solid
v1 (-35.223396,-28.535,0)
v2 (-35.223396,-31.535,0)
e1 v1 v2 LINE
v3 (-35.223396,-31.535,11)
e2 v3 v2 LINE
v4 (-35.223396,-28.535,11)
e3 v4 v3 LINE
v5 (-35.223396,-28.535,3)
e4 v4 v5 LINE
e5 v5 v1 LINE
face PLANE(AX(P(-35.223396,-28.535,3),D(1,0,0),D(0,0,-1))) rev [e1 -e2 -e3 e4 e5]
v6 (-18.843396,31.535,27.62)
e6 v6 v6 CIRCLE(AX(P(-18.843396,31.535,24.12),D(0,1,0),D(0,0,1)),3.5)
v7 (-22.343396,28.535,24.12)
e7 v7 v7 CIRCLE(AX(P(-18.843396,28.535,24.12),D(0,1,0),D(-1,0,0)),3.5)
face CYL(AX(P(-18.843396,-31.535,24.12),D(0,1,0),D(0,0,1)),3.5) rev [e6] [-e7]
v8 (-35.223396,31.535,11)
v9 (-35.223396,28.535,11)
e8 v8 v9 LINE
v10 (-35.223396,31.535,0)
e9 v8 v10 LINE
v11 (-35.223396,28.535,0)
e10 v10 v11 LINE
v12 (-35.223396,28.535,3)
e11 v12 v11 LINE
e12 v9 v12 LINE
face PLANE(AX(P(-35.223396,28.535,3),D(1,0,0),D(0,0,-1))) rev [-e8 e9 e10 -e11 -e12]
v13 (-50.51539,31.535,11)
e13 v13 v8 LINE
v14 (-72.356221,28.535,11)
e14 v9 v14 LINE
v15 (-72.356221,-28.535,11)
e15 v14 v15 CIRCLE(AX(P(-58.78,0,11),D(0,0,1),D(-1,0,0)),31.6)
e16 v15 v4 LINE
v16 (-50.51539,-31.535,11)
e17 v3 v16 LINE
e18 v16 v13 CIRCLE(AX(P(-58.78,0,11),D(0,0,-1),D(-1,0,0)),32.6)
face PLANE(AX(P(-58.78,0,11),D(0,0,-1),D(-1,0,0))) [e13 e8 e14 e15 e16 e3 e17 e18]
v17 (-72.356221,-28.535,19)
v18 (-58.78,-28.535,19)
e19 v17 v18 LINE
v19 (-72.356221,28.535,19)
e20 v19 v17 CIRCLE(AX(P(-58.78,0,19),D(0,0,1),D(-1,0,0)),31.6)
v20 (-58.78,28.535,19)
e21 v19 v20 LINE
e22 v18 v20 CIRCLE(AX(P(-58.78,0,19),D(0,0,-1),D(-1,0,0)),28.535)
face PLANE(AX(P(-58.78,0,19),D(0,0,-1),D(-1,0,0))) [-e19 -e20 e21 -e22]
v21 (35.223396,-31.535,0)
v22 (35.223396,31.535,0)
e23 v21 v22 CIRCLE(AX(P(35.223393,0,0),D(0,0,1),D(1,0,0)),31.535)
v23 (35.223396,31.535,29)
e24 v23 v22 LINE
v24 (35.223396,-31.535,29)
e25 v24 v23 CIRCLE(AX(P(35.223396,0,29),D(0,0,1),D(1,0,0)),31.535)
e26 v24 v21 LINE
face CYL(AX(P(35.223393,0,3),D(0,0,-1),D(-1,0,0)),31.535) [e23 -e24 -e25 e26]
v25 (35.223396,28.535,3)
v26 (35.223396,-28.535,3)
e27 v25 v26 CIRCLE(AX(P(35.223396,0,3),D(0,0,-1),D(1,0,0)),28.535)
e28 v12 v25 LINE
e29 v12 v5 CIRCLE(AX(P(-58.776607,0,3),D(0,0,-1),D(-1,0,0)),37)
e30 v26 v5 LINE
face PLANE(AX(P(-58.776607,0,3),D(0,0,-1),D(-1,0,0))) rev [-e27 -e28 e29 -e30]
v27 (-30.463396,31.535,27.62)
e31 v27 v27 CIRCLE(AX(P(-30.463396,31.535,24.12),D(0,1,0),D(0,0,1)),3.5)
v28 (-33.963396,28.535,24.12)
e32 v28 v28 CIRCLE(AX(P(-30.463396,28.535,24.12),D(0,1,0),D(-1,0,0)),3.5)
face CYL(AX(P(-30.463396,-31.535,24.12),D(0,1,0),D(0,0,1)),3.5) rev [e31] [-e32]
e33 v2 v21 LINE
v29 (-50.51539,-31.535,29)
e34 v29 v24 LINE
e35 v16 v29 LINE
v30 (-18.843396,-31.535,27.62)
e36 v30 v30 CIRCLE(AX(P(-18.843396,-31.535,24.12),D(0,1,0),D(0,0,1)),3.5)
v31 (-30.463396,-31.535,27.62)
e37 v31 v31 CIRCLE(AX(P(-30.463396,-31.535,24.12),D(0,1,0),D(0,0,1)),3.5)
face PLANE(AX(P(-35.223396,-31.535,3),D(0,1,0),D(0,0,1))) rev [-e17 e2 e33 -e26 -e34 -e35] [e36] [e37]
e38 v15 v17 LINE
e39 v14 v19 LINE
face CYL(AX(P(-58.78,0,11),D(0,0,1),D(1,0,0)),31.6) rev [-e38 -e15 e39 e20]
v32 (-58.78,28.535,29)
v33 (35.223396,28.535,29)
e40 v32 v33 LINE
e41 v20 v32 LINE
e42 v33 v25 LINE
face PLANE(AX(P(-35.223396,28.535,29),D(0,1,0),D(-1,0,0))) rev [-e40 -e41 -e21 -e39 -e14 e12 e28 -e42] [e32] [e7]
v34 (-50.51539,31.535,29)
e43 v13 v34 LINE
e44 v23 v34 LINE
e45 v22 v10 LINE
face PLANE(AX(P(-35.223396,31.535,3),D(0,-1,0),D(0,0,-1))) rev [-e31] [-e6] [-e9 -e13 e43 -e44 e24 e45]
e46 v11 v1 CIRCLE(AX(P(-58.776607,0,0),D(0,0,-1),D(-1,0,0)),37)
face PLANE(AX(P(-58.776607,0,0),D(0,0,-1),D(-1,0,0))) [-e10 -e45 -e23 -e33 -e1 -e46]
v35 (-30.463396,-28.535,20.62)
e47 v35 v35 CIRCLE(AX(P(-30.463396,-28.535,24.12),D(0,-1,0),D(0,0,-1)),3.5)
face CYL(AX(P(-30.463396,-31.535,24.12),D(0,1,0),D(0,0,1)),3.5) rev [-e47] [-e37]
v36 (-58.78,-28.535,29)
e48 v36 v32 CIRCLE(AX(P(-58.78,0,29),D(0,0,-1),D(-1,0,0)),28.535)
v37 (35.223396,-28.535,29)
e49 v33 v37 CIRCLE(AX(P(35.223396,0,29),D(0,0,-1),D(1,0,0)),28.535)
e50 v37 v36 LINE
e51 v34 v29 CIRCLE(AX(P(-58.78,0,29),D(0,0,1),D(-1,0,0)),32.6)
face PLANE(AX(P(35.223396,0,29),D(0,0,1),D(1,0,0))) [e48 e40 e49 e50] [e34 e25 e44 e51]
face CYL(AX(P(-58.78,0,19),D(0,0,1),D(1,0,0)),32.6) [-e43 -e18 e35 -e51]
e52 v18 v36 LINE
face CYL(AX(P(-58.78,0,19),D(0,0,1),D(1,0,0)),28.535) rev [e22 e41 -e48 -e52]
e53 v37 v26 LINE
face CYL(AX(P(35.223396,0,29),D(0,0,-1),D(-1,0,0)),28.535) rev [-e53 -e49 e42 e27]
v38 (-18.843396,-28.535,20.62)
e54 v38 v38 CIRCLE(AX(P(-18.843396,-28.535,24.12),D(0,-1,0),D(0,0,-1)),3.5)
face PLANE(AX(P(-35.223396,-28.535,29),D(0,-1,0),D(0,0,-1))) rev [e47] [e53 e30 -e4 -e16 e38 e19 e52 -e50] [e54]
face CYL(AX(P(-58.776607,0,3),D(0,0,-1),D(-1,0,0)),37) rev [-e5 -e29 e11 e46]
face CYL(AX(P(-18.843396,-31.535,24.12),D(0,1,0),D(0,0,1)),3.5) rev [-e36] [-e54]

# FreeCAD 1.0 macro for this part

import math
import FreeCAD as App
import Part
import Sketcher

V = App.Vector

doc = App.newDocument("Part")
body = doc.addObject("PartDesign::Body", "Body")

# Sketch on XY plane
sketch1 = body.newObject("Sketcher::SketchObject", "Sketch")
sketch1.AttachmentSupport = (doc.getObject("XY_Plane"), [""])
sketch1.MapMode = "FlatFace"
sketch1.addGeometry([
    Part.LineSegment(V(-35.2, 31.5, 0), V(-35.2, 28.5, 0)),  # 0
    Part.ArcOfCircle(Part.Circle(V(-58.8, 0, 0), V(0, 0, 1), 37), math.radians(-50), math.radians(50)),  # 1
    Part.LineSegment(V(-35.2, -28.5, 0), V(-35.2, -31.5, 0)),  # 2
    Part.LineSegment(V(-35.2, -31.5, 0), V(35.2, -31.5, 0)),  # 3
    Part.ArcOfCircle(Part.Circle(V(35.2, 0, 0), V(0, 0, 1), 31.5), math.radians(-90), math.radians(90)),  # 4
    Part.LineSegment(V(35.2, 31.5, 0), V(-35.2, 31.5, 0)),  # 5
], False)
sketch1.addConstraint([
    Sketcher.Constraint("Coincident", 0, 2, 1, 2),
    Sketcher.Constraint("Coincident", 1, 1, 2, 1),
    Sketcher.Constraint("Coincident", 2, 2, 3, 1),
    Sketcher.Constraint("Tangent", 3, 2, 4, 1),
    Sketcher.Constraint("Tangent", 4, 2, 5, 1),
    Sketcher.Constraint("Coincident", 5, 2, 0, 1),
    Sketcher.Constraint("Vertical", 0),
    Sketcher.Constraint("Vertical", 2),
    Sketcher.Constraint("Horizontal", 3),
    Sketcher.Constraint("Horizontal", 5),
    Sketcher.Constraint("Symmetric", 2, 2, 4, 2, -1, 1),
    Sketcher.Constraint("Symmetric", 0, 2, 1, 1, -1),
    Sketcher.Constraint("Radius", 1, 37.0),
    Sketcher.Constraint("DistanceY", 0, 2, 0, 1, 3.0),
    Sketcher.Constraint("Radius", 4, 31.535),
    Sketcher.Constraint("DistanceX", 1, 3, 4, 3, 94.0),
])
pad1 = body.newObject("PartDesign::Pad", "Pad")
pad1.Profile = sketch1
pad1.Length = 3

# Sketch on XY plane
sketch2 = body.newObject("Sketcher::SketchObject", "Sketch001")
sketch2.AttachmentSupport = (doc.getObject("XY_Plane"), [""])
sketch2.MapMode = "FlatFace"
sketch2.AttachmentOffset = App.Placement(V(0, 0, 3), App.Rotation())
sketch2.addGeometry([
    Part.LineSegment(V(35.2, 31.5, 0), V(-35.2, 31.5, 0)),  # 0
    Part.LineSegment(V(-35.2, 31.5, 0), V(-35.2, 28.5, 0)),  # 1
    Part.LineSegment(V(-35.2, 28.5, 0), V(35.2, 28.5, 0)),  # 2
    Part.ArcOfCircle(Part.Circle(V(35.2, 0, 0), V(0, 0, 1), 28.5), math.radians(-90), math.radians(90)),  # 3
    Part.LineSegment(V(35.2, -28.5, 0), V(-35.2, -28.5, 0)),  # 4
    Part.LineSegment(V(-35.2, -28.5, 0), V(-35.2, -31.5, 0)),  # 5
    Part.LineSegment(V(-35.2, -31.5, 0), V(35.2, -31.5, 0)),  # 6
    Part.ArcOfCircle(Part.Circle(V(35.2, 0, 0), V(0, 0, 1), 31.5), math.radians(-90), math.radians(90)),  # 7
], False)
sketch2.addConstraint([
    Sketcher.Constraint("Coincident", 0, 2, 1, 1),
    Sketcher.Constraint("Coincident", 1, 2, 2, 1),
    Sketcher.Constraint("Tangent", 2, 2, 3, 2),
    Sketcher.Constraint("Tangent", 3, 1, 4, 1),
    Sketcher.Constraint("Coincident", 4, 2, 5, 1),
    Sketcher.Constraint("Coincident", 5, 2, 6, 1),
    Sketcher.Constraint("Tangent", 6, 2, 7, 1),
    Sketcher.Constraint("Tangent", 7, 2, 0, 1),
    Sketcher.Constraint("Horizontal", 0),
    Sketcher.Constraint("Vertical", 1),
    Sketcher.Constraint("Horizontal", 2),
    Sketcher.Constraint("Horizontal", 4),
    Sketcher.Constraint("Vertical", 5),
    Sketcher.Constraint("Horizontal", 6),
    Sketcher.Constraint("Coincident", 7, 3, 3, 3),
    Sketcher.Constraint("Symmetric", 1, 2, 3, 1, -1, 1),
    Sketcher.Constraint("Vertical", 1, 2, 4, 2),
    Sketcher.Constraint("DistanceY", 1, 2, 1, 1, 3.0),
    Sketcher.Constraint("Radius", 3, 28.535),
    Sketcher.Constraint("DistanceX", 0, 2, 0, 1, 70.446791),
])
pad2 = body.newObject("PartDesign::Pad", "Pad001")
pad2.Profile = sketch2
pad2.Length = 26

# Sketch on XZ plane
sketch3 = body.newObject("Sketcher::SketchObject", "Sketch002")
sketch3.AttachmentSupport = (doc.getObject("XZ_Plane"), [""])
sketch3.MapMode = "FlatFace"
sketch3.AttachmentOffset = App.Placement(V(0, 0, -31.535), App.Rotation())
sketch3.addGeometry([
    Part.Circle(V(-18.8, 24.1, 0), V(0, 0, 1), 3.5),
    Part.Circle(V(-30.5, 24.1, 0), V(0, 0, 1), 3.5),
], False)
sketch3.addConstraint([
    Sketcher.Constraint("Equal", 0, 1),
    Sketcher.Constraint("Horizontal", 0, 3, 1, 3),
    Sketcher.Constraint("Diameter", 0, 7.0),
    Sketcher.Constraint("DistanceY", -1, 1, 0, 3, 24.12),
    Sketcher.Constraint("DistanceX", 1, 3, 0, 3, 11.62),
    Sketcher.Constraint("DistanceX", 0, 3, -1, 1, 18.843395),
])
pocket1 = body.newObject("PartDesign::Pocket", "Pocket")
pocket1.Profile = sketch3
pocket1.Type = "ThroughAll"
pocket1.Reversed = True

# Sketch on XY plane
sketch4 = body.newObject("Sketcher::SketchObject", "Sketch003")
sketch4.AttachmentSupport = (doc.getObject("XY_Plane"), [""])
sketch4.MapMode = "FlatFace"
sketch4.AttachmentOffset = App.Placement(V(0, 0, 29), App.Rotation())
sketch4.addGeometry([
    Part.LineSegment(V(-35.2, 31.5, 0), V(-50.5, 31.5, 0)),  # 0
    Part.ArcOfCircle(Part.Circle(V(-58.8, 0, 0), V(0, 0, 1), 32.6), math.radians(75), math.radians(285)),  # 1
    Part.LineSegment(V(-50.5, -31.5, 0), V(-35.2, -31.5, 0)),  # 2
    Part.LineSegment(V(-35.2, -31.5, 0), V(-35.2, -28.5, 0)),  # 3
    Part.LineSegment(V(-35.2, -28.5, 0), V(-58.8, -28.5, 0)),  # 4
    Part.ArcOfCircle(Part.Circle(V(-58.8, 0, 0), V(0, 0, 1), 28.5), math.radians(90), math.radians(270)),  # 5
    Part.LineSegment(V(-58.8, 28.5, 0), V(-35.2, 28.5, 0)),  # 6
    Part.LineSegment(V(-35.2, 28.5, 0), V(-35.2, 31.5, 0)),  # 7
], False)
sketch4.addConstraint([
    Sketcher.Constraint("Coincident", 0, 2, 1, 1),
    Sketcher.Constraint("Coincident", 1, 2, 2, 1),
    Sketcher.Constraint("Coincident", 2, 2, 3, 1),
    Sketcher.Constraint("Coincident", 3, 2, 4, 1),
    Sketcher.Constraint("Tangent", 4, 2, 5, 2),
    Sketcher.Constraint("Tangent", 5, 1, 6, 1),
    Sketcher.Constraint("Coincident", 6, 2, 7, 1),
    Sketcher.Constraint("Coincident", 7, 2, 0, 1),
    Sketcher.Constraint("Horizontal", 0),
    Sketcher.Constraint("Horizontal", 2),
    Sketcher.Constraint("Vertical", 3),
    Sketcher.Constraint("Horizontal", 4),
    Sketcher.Constraint("Horizontal", 6),
    Sketcher.Constraint("Vertical", 7),
    Sketcher.Constraint("Coincident", 5, 3, 1, 3),
    Sketcher.Constraint("Symmetric", 0, 2, 1, 2, -1),
    Sketcher.Constraint("Vertical", 3, 2, 6, 2),
    Sketcher.Constraint("Radius", 1, 32.6),
    Sketcher.Constraint("DistanceY", 3, 1, 3, 2, 3.0),
    Sketcher.Constraint("Radius", 5, 28.535),
    Sketcher.Constraint("DistanceX", 1, 3, -1, 1, 58.78),
    Sketcher.Constraint("DistanceX", 0, 2, 0, 1, 15.291995),
])
pad3 = body.newObject("PartDesign::Pad", "Pad002")
pad3.Profile = sketch4
pad3.Length = 10
pad3.Reversed = True

# Sketch on XY plane
sketch5 = body.newObject("Sketcher::SketchObject", "Sketch004")
sketch5.AttachmentSupport = (doc.getObject("XY_Plane"), [""])
sketch5.MapMode = "FlatFace"
sketch5.AttachmentOffset = App.Placement(V(0, 0, 19), App.Rotation())
sketch5.addGeometry([
    Part.LineSegment(V(-35.2, 28.5, 0), V(-72.4, 28.5, 0)),  # 0
    Part.ArcOfCircle(Part.Circle(V(-58.8, 0, 0), V(0, 0, 1), 31.6), math.radians(115), math.radians(245)),  # 1
    Part.LineSegment(V(-72.4, -28.5, 0), V(-35.2, -28.5, 0)),  # 2
    Part.LineSegment(V(-35.2, -28.5, 0), V(-35.2, -31.5, 0)),  # 3
    Part.LineSegment(V(-35.2, -31.5, 0), V(-50.5, -31.5, 0)),  # 4
    Part.ArcOfCircle(Part.Circle(V(-58.8, 0, 0), V(0, 0, 1), 32.6), math.radians(75), math.radians(285)),  # 5
    Part.LineSegment(V(-50.5, 31.5, 0), V(-35.2, 31.5, 0)),  # 6
    Part.LineSegment(V(-35.2, 31.5, 0), V(-35.2, 28.5, 0)),  # 7
], False)
sketch5.addConstraint([
    Sketcher.Constraint("Coincident", 0, 2, 1, 1),
    Sketcher.Constraint("Coincident", 1, 2, 2, 1),
    Sketcher.Constraint("Coincident", 2, 2, 3, 1),
    Sketcher.Constraint("Coincident", 3, 2, 4, 1),
    Sketcher.Constraint("Coincident", 4, 2, 5, 2),
    Sketcher.Constraint("Coincident", 5, 1, 6, 1),
    Sketcher.Constraint("Coincident", 6, 2, 7, 1),
    Sketcher.Constraint("Coincident", 7, 2, 0, 1),
    Sketcher.Constraint("Horizontal", 0),
    Sketcher.Constraint("Horizontal", 2),
    Sketcher.Constraint("Vertical", 3),
    Sketcher.Constraint("Horizontal", 4),
    Sketcher.Constraint("Horizontal", 6),
    Sketcher.Constraint("Vertical", 7),
    Sketcher.Constraint("Coincident", 5, 3, 1, 3),
    Sketcher.Constraint("Symmetric", 0, 2, 1, 2, -1),
    Sketcher.Constraint("Symmetric", 3, 2, 6, 2, -1),
    Sketcher.Constraint("Radius", 1, 31.6),
    Sketcher.Constraint("Radius", 5, 32.6),
    Sketcher.Constraint("DistanceY", 3, 2, 3, 1, 3.0),
    Sketcher.Constraint("DistanceX", 1, 3, -1, 1, 58.78),
    Sketcher.Constraint("DistanceY", 1, 2, 0, 2, 57.07),
    Sketcher.Constraint("DistanceX", 0, 2, 0, 1, 37.132825),
])
pad4 = body.newObject("PartDesign::Pad", "Pad003")
pad4.Profile = sketch5
pad4.Length = 8
pad4.Reversed = True

doc.recompute()
